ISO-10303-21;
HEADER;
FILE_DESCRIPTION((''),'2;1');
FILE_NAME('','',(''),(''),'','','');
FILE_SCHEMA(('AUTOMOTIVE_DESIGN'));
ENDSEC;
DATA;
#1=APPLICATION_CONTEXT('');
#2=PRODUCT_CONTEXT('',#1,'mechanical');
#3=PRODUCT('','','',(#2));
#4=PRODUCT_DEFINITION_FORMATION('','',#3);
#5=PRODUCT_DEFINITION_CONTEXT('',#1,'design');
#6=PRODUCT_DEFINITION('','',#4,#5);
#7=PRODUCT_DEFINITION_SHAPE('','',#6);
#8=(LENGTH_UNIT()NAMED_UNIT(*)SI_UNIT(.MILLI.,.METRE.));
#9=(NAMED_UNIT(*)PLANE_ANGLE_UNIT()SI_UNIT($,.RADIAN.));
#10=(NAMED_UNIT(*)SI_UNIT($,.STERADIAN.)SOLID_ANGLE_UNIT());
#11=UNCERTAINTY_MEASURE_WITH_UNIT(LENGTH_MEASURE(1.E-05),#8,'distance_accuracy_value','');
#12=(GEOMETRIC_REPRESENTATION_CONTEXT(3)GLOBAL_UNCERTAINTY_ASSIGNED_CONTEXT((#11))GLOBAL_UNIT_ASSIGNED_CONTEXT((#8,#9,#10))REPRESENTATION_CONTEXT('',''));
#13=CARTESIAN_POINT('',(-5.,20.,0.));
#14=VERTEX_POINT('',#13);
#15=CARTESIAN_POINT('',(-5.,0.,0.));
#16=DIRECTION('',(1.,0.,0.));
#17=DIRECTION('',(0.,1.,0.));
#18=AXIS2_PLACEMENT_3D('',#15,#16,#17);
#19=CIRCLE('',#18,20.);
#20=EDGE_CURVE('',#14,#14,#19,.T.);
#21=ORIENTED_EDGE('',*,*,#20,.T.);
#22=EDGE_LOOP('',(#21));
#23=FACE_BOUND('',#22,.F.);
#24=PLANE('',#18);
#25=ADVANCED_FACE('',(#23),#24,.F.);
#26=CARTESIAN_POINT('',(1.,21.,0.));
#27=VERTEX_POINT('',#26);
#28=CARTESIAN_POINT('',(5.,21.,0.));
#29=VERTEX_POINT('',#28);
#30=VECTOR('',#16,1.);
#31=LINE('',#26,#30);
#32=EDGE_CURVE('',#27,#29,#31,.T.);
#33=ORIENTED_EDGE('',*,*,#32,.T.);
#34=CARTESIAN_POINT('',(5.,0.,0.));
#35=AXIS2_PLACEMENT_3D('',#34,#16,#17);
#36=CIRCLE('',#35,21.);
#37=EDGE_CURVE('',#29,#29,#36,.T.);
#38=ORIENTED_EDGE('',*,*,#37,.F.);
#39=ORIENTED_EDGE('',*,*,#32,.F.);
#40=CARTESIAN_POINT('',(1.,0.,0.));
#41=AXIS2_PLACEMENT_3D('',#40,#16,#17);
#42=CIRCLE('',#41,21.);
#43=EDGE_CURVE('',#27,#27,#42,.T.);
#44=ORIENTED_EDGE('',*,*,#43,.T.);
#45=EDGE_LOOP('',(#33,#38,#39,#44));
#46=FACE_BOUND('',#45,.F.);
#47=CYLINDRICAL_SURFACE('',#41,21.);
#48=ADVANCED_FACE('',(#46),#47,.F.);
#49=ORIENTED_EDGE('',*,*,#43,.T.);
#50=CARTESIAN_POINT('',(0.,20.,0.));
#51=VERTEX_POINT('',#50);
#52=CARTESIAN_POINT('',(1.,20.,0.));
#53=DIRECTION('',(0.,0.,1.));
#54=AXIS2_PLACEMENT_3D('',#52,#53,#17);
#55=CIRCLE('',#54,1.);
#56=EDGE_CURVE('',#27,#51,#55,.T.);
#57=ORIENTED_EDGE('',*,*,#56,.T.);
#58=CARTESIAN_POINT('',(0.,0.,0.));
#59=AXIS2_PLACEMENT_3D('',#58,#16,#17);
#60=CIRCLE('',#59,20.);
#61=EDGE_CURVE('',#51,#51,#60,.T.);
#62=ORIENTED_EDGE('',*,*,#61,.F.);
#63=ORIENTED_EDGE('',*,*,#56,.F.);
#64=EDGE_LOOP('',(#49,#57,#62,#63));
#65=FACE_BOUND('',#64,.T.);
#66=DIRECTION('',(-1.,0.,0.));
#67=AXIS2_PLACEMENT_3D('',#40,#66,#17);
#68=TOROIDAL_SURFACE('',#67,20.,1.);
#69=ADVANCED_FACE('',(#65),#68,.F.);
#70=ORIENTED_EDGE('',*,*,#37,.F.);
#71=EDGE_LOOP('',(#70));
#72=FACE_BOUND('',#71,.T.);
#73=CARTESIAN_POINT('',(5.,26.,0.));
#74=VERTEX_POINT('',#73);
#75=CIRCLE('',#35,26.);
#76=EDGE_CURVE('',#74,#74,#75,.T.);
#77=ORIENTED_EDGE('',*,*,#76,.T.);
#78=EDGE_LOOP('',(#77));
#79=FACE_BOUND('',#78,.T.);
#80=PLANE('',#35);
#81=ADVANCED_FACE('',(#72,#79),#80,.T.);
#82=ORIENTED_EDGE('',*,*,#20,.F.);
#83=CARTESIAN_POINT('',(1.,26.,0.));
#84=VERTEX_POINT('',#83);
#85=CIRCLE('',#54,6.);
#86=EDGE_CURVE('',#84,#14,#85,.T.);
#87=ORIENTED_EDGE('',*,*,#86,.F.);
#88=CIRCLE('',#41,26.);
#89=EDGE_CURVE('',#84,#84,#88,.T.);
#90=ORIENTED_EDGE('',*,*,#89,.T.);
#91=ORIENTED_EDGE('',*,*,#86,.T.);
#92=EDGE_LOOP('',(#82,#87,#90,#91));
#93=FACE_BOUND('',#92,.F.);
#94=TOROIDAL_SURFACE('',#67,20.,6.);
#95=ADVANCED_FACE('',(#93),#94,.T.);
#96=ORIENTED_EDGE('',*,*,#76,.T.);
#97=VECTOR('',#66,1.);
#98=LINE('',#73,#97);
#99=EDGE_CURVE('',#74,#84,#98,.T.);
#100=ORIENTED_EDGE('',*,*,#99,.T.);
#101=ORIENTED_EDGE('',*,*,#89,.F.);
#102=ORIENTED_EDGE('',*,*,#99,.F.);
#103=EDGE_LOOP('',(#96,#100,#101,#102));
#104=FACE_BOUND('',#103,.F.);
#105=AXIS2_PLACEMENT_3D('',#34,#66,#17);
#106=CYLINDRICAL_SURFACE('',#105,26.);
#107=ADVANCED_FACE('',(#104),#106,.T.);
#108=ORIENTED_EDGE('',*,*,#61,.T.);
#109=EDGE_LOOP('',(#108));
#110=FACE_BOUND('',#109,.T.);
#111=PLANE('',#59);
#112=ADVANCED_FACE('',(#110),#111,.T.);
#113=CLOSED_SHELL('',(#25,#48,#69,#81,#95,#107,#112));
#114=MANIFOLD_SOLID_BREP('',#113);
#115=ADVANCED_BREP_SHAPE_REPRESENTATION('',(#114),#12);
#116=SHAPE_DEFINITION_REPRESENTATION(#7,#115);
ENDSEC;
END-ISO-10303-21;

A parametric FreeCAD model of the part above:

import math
import FreeCAD as App
import Part
import Sketcher
from FreeCAD import Vector
Q = App.Units.Quantity

doc = App.newDocument("Part")
body = doc.addObject("PartDesign::Body", "Body")

sketch1 = body.newObject("Sketcher::SketchObject", "Sketch")
sketch1.AttachmentSupport = (doc.getObject("XY_Plane"), [""])
sketch1.MapMode = "FlatFace"
sketch1.addGeometry(Part.LineSegment(Vector(0, 0, 0), Vector(0, 20, 0)), False)
sketch1.addGeometry(Part.ArcOfCircle(Part.Circle(Vector(1, 20, 0), Vector(0, 0, 1), 1), math.radians(90), math.radians(180)), False)
sketch1.addGeometry(Part.LineSegment(Vector(1, 21, 0), Vector(5, 21, 0)), False)
sketch1.addGeometry(Part.LineSegment(Vector(5, 21, 0), Vector(5, 26, 0)), False)
sketch1.addGeometry(Part.LineSegment(Vector(5, 26, 0), Vector(1, 26, 0)), False)
sketch1.addGeometry(Part.ArcOfCircle(Part.Circle(Vector(1, 20, 0), Vector(0, 0, 1), 6), math.radians(90), math.radians(180)), False)
sketch1.addGeometry(Part.LineSegment(Vector(-5, 20, 0), Vector(-5, 0, 0)), False)
sketch1.addGeometry(Part.LineSegment(Vector(-5, 0, 0), Vector(0, 0, 0)), False)
sketch1.addConstraint(Sketcher.Constraint("Tangent", 0, 2, 1, 2))
sketch1.addConstraint(Sketcher.Constraint("Tangent", 1, 1, 2, 1))
sketch1.addConstraint(Sketcher.Constraint("Coincident", 2, 2, 3, 1))
sketch1.addConstraint(Sketcher.Constraint("Coincident", 3, 2, 4, 1))
sketch1.addConstraint(Sketcher.Constraint("Tangent", 4, 2, 5, 1))
sketch1.addConstraint(Sketcher.Constraint("Tangent", 5, 2, 6, 1))
sketch1.addConstraint(Sketcher.Constraint("Coincident", 6, 2, 7, 1))
sketch1.addConstraint(Sketcher.Constraint("Coincident", 7, 2, 0, 1))
sketch1.addConstraint(Sketcher.Constraint("Vertical", 0))
sketch1.addConstraint(Sketcher.Constraint("Horizontal", 2))
sketch1.addConstraint(Sketcher.Constraint("Vertical", 3))
sketch1.addConstraint(Sketcher.Constraint("Horizontal", 4))
sketch1.addConstraint(Sketcher.Constraint("Vertical", 6))
sketch1.addConstraint(Sketcher.Constraint("Horizontal", 7))
sketch1.addConstraint(Sketcher.Constraint("Coincident", 7, 2, -1, 1))
sketch1.addConstraint(Sketcher.Constraint("Coincident", 5, 3, 1, 3))
sketch1.addConstraint(Sketcher.Constraint("Radius", 1, Q("1 mm")))
sketch1.addConstraint(Sketcher.Constraint("DistanceX", 7, 1, 7, 2, Q("5 mm")))
sketch1.addConstraint(Sketcher.Constraint("DistanceX", -1, 1, 2, 2, Q("5 mm")))
sketch1.addConstraint(Sketcher.Constraint("DistanceY", 0, 1, 0, 2, Q("20 mm")))
revolution = body.newObject("PartDesign::Revolution", "Revolution")
revolution.Profile = sketch1
revolution.ReferenceAxis = (sketch1, ["H_Axis"])
revolution.Angle = 360

doc.recompute()
